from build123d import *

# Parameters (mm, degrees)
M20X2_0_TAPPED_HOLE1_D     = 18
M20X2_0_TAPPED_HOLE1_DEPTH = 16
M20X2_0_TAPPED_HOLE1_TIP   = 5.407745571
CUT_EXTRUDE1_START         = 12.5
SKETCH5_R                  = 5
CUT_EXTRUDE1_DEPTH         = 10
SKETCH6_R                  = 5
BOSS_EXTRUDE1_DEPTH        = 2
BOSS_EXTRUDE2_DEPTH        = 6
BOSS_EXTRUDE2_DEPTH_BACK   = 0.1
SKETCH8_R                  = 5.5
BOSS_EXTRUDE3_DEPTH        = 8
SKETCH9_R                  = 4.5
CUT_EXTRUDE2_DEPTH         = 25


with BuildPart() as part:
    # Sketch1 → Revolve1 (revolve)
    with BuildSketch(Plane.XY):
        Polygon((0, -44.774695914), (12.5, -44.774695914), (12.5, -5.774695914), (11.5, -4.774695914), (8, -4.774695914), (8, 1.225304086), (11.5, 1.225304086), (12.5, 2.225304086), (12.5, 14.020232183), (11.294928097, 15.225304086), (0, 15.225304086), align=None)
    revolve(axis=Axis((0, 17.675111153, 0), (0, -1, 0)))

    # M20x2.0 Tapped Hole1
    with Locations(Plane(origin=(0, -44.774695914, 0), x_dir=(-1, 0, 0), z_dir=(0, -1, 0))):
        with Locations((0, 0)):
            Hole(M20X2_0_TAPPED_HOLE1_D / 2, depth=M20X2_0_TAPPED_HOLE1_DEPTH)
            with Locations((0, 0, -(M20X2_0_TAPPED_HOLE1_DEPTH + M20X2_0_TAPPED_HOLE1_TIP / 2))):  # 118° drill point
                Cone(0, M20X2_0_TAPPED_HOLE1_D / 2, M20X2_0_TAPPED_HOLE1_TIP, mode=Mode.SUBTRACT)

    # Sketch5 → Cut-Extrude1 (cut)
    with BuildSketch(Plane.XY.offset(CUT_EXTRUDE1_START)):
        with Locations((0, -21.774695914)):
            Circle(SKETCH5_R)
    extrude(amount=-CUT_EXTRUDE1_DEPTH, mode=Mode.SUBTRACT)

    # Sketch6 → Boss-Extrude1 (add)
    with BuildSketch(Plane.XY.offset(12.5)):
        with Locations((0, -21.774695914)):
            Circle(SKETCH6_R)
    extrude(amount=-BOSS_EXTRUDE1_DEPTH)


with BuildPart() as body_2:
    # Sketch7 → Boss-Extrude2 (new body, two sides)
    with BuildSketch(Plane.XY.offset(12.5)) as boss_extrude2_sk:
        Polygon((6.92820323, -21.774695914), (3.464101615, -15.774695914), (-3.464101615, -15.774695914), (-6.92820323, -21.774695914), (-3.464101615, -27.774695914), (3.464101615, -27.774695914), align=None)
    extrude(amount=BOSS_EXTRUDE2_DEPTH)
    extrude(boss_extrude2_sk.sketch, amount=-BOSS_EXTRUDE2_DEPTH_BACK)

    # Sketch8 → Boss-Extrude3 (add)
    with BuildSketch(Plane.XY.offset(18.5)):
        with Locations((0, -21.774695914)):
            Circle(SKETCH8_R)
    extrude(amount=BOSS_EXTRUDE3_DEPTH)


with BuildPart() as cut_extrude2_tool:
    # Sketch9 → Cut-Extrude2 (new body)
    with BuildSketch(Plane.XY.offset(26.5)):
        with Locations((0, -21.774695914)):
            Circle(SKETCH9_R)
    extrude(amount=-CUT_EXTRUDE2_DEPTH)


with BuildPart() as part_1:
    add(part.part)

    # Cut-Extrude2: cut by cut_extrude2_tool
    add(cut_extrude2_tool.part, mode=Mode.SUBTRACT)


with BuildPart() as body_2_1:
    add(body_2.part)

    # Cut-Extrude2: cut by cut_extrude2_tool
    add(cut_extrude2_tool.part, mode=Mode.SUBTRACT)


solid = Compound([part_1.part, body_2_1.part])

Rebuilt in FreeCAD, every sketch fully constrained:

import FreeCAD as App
import Part
import Sketcher
Q = App.Units.Quantity

doc = App.newDocument("Part")
body = doc.addObject("PartDesign::Body", "Body")

# Sketch on XY plane
sketch1 = doc.addObject("Sketcher::SketchObject", "Sketch")
body.addObject(sketch1)
sketch1.AttachmentSupport = (doc.XY_Plane, [""])
sketch1.MapMode = "FlatFace"
sketch1.addGeometry([
    Part.LineSegment(App.Vector(0, -44.8, 0), App.Vector(12.5, -44.8, 0)),  # 0
    Part.LineSegment(App.Vector(12.5, -44.8, 0), App.Vector(12.5, -5.8, 0)),  # 1
    Part.LineSegment(App.Vector(12.5, -5.8, 0), App.Vector(11.5, -4.8, 0)),  # 2
    Part.LineSegment(App.Vector(11.5, -4.8, 0), App.Vector(8, -4.8, 0)),  # 3
    Part.LineSegment(App.Vector(8, -4.8, 0), App.Vector(8, 1.2, 0)),  # 4
    Part.LineSegment(App.Vector(8, 1.2, 0), App.Vector(11.5, 1.2, 0)),  # 5
    Part.LineSegment(App.Vector(11.5, 1.2, 0), App.Vector(12.5, 2.2, 0)),  # 6
    Part.LineSegment(App.Vector(12.5, 2.2, 0), App.Vector(12.5, 14, 0)),  # 7
    Part.LineSegment(App.Vector(12.5, 14, 0), App.Vector(11.3, 15.2, 0)),  # 8
    Part.LineSegment(App.Vector(11.3, 15.2, 0), App.Vector(0, 15.2, 0)),  # 9
    Part.LineSegment(App.Vector(0, 15.2, 0), App.Vector(0, -44.8, 0)),  # 10
], False)
sketch1.addConstraint([
    Sketcher.Constraint("Coincident", 0, 2, 1, 1),
    Sketcher.Constraint("Coincident", 1, 2, 2, 1),
    Sketcher.Constraint("Coincident", 2, 2, 3, 1),
    Sketcher.Constraint("Coincident", 3, 2, 4, 1),
    Sketcher.Constraint("Coincident", 4, 2, 5, 1),
    Sketcher.Constraint("Coincident", 5, 2, 6, 1),
    Sketcher.Constraint("Coincident", 6, 2, 7, 1),
    Sketcher.Constraint("Coincident", 7, 2, 8, 1),
    Sketcher.Constraint("Coincident", 8, 2, 9, 1),
    Sketcher.Constraint("Coincident", 9, 2, 10, 1),
    Sketcher.Constraint("Coincident", 10, 2, 0, 1),
    Sketcher.Constraint("Horizontal", 0),
    Sketcher.Constraint("Vertical", 1),
    Sketcher.Constraint("Horizontal", 3),
    Sketcher.Constraint("Vertical", 4),
    Sketcher.Constraint("Horizontal", 5),
    Sketcher.Constraint("Vertical", 7),
    Sketcher.Constraint("Horizontal", 9),
    Sketcher.Constraint("Vertical", 10),
    Sketcher.Constraint("PointOnObject", 9, 2, -2),
    Sketcher.Constraint("Perpendicular", 2, 6),
    Sketcher.Constraint("Perpendicular", 6, 8),
    Sketcher.Constraint("Vertical", 2, 2, 5, 2),
    Sketcher.Constraint("Vertical", 1, 2, 6, 2),
    Sketcher.Constraint("Equal", 2, 6),
    Sketcher.Constraint("DistanceY", 1, 1, 1, 2, Q("39 mm")),
    Sketcher.Constraint("DistanceY", 4, 1, 4, 2, Q("6 mm")),
    Sketcher.Constraint("DistanceY", 10, 2, 10, 1, Q("60 mm")),
    Sketcher.Constraint("DistanceX", 0, 1, 0, 2, Q("12.5 mm")),
    Sketcher.Constraint("DistanceX", 3, 2, 3, 1, Q("3.5 mm")),
    Sketcher.Constraint("DistanceX", -1, 1, 3, 2, Q("8 mm")),
    Sketcher.Constraint("DistanceX", 9, 2, 9, 1, Q("11.294928 mm")),
    Sketcher.Constraint("DistanceY", 0, 2, -1, 1, Q("44.774696 mm")),
])
revolution = doc.addObject("PartDesign::Revolution", "Revolution")
body.addObject(revolution)
revolution.Profile = sketch1
revolution.ReferenceAxis = (sketch1, ["V_Axis"])
revolution.Angle = 360

# Sketch on XZ plane
sketch2 = doc.addObject("Sketcher::SketchObject", "Sketch001")
body.addObject(sketch2)
sketch2.AttachmentSupport = (doc.XZ_Plane, [""])
sketch2.MapMode = "FlatFace"
sketch2.AttachmentOffset = App.Placement(App.Vector(0, 0, 44.774696), App.Rotation())
sketch2.addGeometry(Part.Circle(App.Vector(0, 0, 0), App.Vector(0, 0, 1), 9), False)
sketch2.addConstraint([
    Sketcher.Constraint("Coincident", 0, 3, -1, 1),
    Sketcher.Constraint("Diameter", 0, Q("18 mm")),
])
doc.recompute()
hole = doc.addObject("PartDesign::Hole", "Hole")
body.addObject(hole)
hole.Profile = sketch2
hole.ThreadType = "None"
hole.Diameter = 18
hole.DepthType = "Dimension"
hole.Depth = 16
hole.DrillPoint = "Angled"
hole.DrillPointAngle = 118

# Sketch on XY plane
sketch3 = doc.addObject("Sketcher::SketchObject", "Sketch002")
body.addObject(sketch3)
sketch3.AttachmentSupport = (doc.XY_Plane, [""])
sketch3.MapMode = "FlatFace"
sketch3.AttachmentOffset = App.Placement(App.Vector(0, 0, 12.5), App.Rotation())
sketch3.addGeometry(Part.Circle(App.Vector(0, -22, 0), App.Vector(0, 0, 1), 5), False)
sketch3.addConstraint([
    Sketcher.Constraint("PointOnObject", 0, 3, -2),
    Sketcher.Constraint("Diameter", 0, Q("10 mm")),
    Sketcher.Constraint("DistanceY", 0, 3, -1, 1, Q("21.774696 mm")),
])
pocket1 = doc.addObject("PartDesign::Pocket", "Pocket")
body.addObject(pocket1)
pocket1.Profile = sketch3
pocket1.Length = 10

# Sketch on XY plane
sketch4 = doc.addObject("Sketcher::SketchObject", "Sketch003")
body.addObject(sketch4)
sketch4.AttachmentSupport = (doc.XY_Plane, [""])
sketch4.MapMode = "FlatFace"
sketch4.AttachmentOffset = App.Placement(App.Vector(0, 0, 12.5), App.Rotation())
sketch4.addGeometry(Part.Circle(App.Vector(0, -22, 0), App.Vector(0, 0, 1), 5), False)
sketch4.addConstraint([
    Sketcher.Constraint("PointOnObject", 0, 3, -2),
    Sketcher.Constraint("Diameter", 0, Q("10 mm")),
    Sketcher.Constraint("DistanceY", 0, 3, -1, 1, Q("21.774696 mm")),
])
pad1 = doc.addObject("PartDesign::Pad", "Pad")
body.addObject(pad1)
pad1.Profile = sketch4
pad1.Length = 2
pad1.Reversed = True
body2 = doc.addObject("PartDesign::Body", "Body001")

# Sketch on XY plane
sketch5 = doc.addObject("Sketcher::SketchObject", "Sketch004")
body2.addObject(sketch5)
sketch5.AttachmentSupport = (doc.getObject("XY_Plane001"), [""])
sketch5.MapMode = "FlatFace"
sketch5.AttachmentOffset = App.Placement(App.Vector(0, 0, 12.5), App.Rotation())
sketch5.addGeometry([
    Part.LineSegment(App.Vector(7, -22, 0), App.Vector(3, -16, 0)),  # 0
    Part.LineSegment(App.Vector(3, -16, 0), App.Vector(-3, -16, 0)),  # 1
    Part.LineSegment(App.Vector(-3, -16, 0), App.Vector(-7, -22, 0)),  # 2
    Part.LineSegment(App.Vector(-7, -22, 0), App.Vector(-3, -28, 0)),  # 3
    Part.LineSegment(App.Vector(-3, -28, 0), App.Vector(3, -28, 0)),  # 4
    Part.LineSegment(App.Vector(3, -28, 0), App.Vector(7, -22, 0)),  # 5
], False)
sketch5.addConstraint([
    Sketcher.Constraint("Coincident", 0, 2, 1, 1),
    Sketcher.Constraint("Coincident", 1, 2, 2, 1),
    Sketcher.Constraint("Coincident", 2, 2, 3, 1),
    Sketcher.Constraint("Coincident", 3, 2, 4, 1),
    Sketcher.Constraint("Coincident", 4, 2, 5, 1),
    Sketcher.Constraint("Coincident", 5, 2, 0, 1),
    Sketcher.Constraint("Horizontal", 1),
    Sketcher.Constraint("Horizontal", 4),
    Sketcher.Constraint("Symmetric", 2, 2, 5, 2, -2),
    Sketcher.Constraint("Parallel", 0, 3),
    Sketcher.Constraint("Parallel", 2, 5),
    Sketcher.Constraint("Vertical", 1, 2, 3, 2),
    Sketcher.Constraint("Vertical", 0, 2, 4, 2),
    Sketcher.Constraint("Angle", 0, Q("120 deg")),
    Sketcher.Constraint("DistanceY", 2, 2, 1, 2, Q("6 mm")),
    Sketcher.Constraint("DistanceX", -1, 1, 0, 2, Q("3.464102 mm")),
    Sketcher.Constraint("DistanceY", 0, 2, -1, 1, Q("15.774696 mm")),
])
pad2 = doc.addObject("PartDesign::Pad", "Pad001")
body2.addObject(pad2)
pad2.Profile = sketch5
pad2.Type = "TwoLengths"
pad2.Length = 6
pad2.Length2 = 0.1

# Sketch on XY plane
sketch6 = doc.addObject("Sketcher::SketchObject", "Sketch005")
body2.addObject(sketch6)
sketch6.AttachmentSupport = (doc.getObject("XY_Plane001"), [""])
sketch6.MapMode = "FlatFace"
sketch6.AttachmentOffset = App.Placement(App.Vector(0, 0, 18.5), App.Rotation())
sketch6.addGeometry(Part.Circle(App.Vector(0, -22, 0), App.Vector(0, 0, 1), 6), False)
sketch6.addConstraint([
    Sketcher.Constraint("PointOnObject", 0, 3, -2),
    Sketcher.Constraint("Diameter", 0, Q("11 mm")),
    Sketcher.Constraint("DistanceY", 0, 3, -1, 1, Q("21.774696 mm")),
])
pad3 = doc.addObject("PartDesign::Pad", "Pad002")
body2.addObject(pad3)
pad3.Profile = sketch6
pad3.Length = 8
body3 = doc.addObject("PartDesign::Body", "Body002")

# Sketch on XY plane
sketch7 = doc.addObject("Sketcher::SketchObject", "Sketch006")
body3.addObject(sketch7)
sketch7.AttachmentSupport = (doc.getObject("XY_Plane002"), [""])
sketch7.MapMode = "FlatFace"
sketch7.AttachmentOffset = App.Placement(App.Vector(0, 0, 26.5), App.Rotation())
sketch7.addGeometry(Part.Circle(App.Vector(0, -21.8, 0), App.Vector(0, 0, 1), 4.5), False)
sketch7.addConstraint([
    Sketcher.Constraint("PointOnObject", 0, 3, -2),
    Sketcher.Constraint("Diameter", 0, Q("9 mm")),
    Sketcher.Constraint("DistanceY", 0, 3, -1, 1, Q("21.774696 mm")),
])
pad4 = doc.addObject("PartDesign::Pad", "Pad003")
body3.addObject(pad4)
pad4.Profile = sketch7
pad4.Length = 25
pad4.Reversed = True
doc.recompute()

body4 = doc.addObject("PartDesign::Body", "Body003")
body4.BaseFeature = body3
boolean = doc.addObject("PartDesign::Boolean", "Boolean")
body.addObject(boolean)
boolean.Type = "Cut"
boolean.addObjects([body4])
doc.recompute()

boolean2 = doc.addObject("PartDesign::Boolean", "Boolean001")
body2.addObject(boolean2)
boolean2.Type = "Cut"
boolean2.addObjects([body3])

doc.recompute()
